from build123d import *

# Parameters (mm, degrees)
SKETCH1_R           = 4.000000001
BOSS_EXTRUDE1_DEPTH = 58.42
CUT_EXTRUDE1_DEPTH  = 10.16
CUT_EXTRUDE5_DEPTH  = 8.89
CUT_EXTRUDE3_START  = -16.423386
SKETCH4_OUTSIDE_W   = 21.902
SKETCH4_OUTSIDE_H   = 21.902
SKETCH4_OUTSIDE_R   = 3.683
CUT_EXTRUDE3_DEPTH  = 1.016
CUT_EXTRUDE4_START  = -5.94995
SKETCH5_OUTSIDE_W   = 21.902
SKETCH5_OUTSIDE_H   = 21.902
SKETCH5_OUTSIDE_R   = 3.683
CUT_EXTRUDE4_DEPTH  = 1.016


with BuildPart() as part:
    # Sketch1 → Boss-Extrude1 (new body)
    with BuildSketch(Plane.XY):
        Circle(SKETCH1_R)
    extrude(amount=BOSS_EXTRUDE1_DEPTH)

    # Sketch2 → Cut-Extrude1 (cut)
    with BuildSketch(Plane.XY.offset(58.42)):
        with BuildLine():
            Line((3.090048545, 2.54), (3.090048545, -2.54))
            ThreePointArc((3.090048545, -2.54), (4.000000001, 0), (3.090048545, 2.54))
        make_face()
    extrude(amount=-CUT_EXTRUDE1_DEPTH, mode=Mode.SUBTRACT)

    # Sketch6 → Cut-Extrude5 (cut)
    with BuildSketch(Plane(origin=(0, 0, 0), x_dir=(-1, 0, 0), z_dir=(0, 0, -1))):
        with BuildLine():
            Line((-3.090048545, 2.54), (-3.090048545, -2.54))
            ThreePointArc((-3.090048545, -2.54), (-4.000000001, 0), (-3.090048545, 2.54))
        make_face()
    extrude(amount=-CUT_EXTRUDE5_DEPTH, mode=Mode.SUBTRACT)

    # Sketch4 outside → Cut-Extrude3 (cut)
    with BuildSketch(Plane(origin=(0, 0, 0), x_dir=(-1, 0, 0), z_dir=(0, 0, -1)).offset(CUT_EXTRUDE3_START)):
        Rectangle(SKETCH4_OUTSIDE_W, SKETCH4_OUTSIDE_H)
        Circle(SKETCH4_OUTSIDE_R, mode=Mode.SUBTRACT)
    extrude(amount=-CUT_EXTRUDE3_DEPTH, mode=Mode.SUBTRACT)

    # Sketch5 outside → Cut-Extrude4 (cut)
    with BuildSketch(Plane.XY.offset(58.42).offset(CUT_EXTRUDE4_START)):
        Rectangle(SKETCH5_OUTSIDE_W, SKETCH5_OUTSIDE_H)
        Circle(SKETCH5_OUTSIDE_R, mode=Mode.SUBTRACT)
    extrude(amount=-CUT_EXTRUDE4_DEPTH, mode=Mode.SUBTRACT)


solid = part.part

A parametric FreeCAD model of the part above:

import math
import FreeCAD as App
import Part
import Sketcher
Q = App.Units.Quantity


def add_polygon(sketch, points):
    """Adds a closed chain of lines whose ends are joined by coincident constraints."""
    first, n = sketch.GeometryCount, len(points)
    for a, b in zip(points, points[1:] + points[:1]):
        sketch.addGeometry(Part.LineSegment(App.Vector(*a, 0), App.Vector(*b, 0)), False)
    for i in range(n):
        sketch.addConstraint(Sketcher.Constraint("Coincident", first + i, 2, first + (i + 1) % n, 1))

doc = App.newDocument("Part")
body = doc.addObject("PartDesign::Body", "Body")

sketch1 = doc.addObject("Sketcher::SketchObject", "Sketch")
body.addObject(sketch1)
sketch1.AttachmentSupport = (doc.XY_Plane, [""])
sketch1.MapMode = "FlatFace"
sketch1.addGeometry(Part.Circle(App.Vector(0, 0, 0), App.Vector(0, 0, 1), 4), False)
sketch1.addConstraint(Sketcher.Constraint("Coincident", 0, 3, -1, 1))
sketch1.addConstraint(Sketcher.Constraint("Diameter", 0, Q("8 mm")))
pad1 = doc.addObject("PartDesign::Pad", "Pad")
body.addObject(pad1)
pad1.Profile = sketch1
pad1.Length = Q("2.3 in")

sketch2 = doc.addObject("Sketcher::SketchObject", "Sketch001")
body.addObject(sketch2)
sketch2.AttachmentSupport = (doc.XY_Plane, [""])
sketch2.MapMode = "FlatFace"
sketch2.AttachmentOffset = App.Placement(App.Vector(0, 0, 2.3 * 25.4), App.Rotation())
sketch2.addGeometry(Part.LineSegment(App.Vector(3.1, 2.5, 0), App.Vector(3.1, -2.5, 0)), False)
sketch2.addGeometry(Part.ArcOfCircle(Part.Circle(App.Vector(0, 0, 0), App.Vector(0, 0, 1), 4), math.radians(-39), math.radians(39)), False)
sketch2.addConstraint(Sketcher.Constraint("Coincident", 0, 1, 1, 2))
sketch2.addConstraint(Sketcher.Constraint("Coincident", 1, 1, 0, 2))
sketch2.addConstraint(Sketcher.Constraint("Vertical", 0))
sketch2.addConstraint(Sketcher.Constraint("Coincident", 1, 3, -1, 1))
sketch2.addConstraint(Sketcher.Constraint("DistanceY", 0, 2, 0, 1, Q("0.2 in")))
sketch2.addConstraint(Sketcher.Constraint("Radius", 1, Q("4 mm")))
pocket1 = doc.addObject("PartDesign::Pocket", "Pocket")
body.addObject(pocket1)
pocket1.Profile = sketch2
pocket1.Length = Q("0.4 in")

sketch3 = doc.addObject("Sketcher::SketchObject", "Sketch002")
body.addObject(sketch3)
sketch3.AttachmentSupport = (doc.XY_Plane, [""])
sketch3.MapMode = "FlatFace"
sketch3.addGeometry(Part.LineSegment(App.Vector(3.1, -2.5, 0), App.Vector(3.1, 2.5, 0)), False)
sketch3.addGeometry(Part.ArcOfCircle(Part.Circle(App.Vector(0, 0, 0), App.Vector(0, 0, 1), 4), math.radians(-39), math.radians(39)), False)
sketch3.addConstraint(Sketcher.Constraint("Coincident", 0, 1, 1, 1))
sketch3.addConstraint(Sketcher.Constraint("Coincident", 1, 2, 0, 2))
sketch3.addConstraint(Sketcher.Constraint("Vertical", 0))
sketch3.addConstraint(Sketcher.Constraint("Coincident", 1, 3, -1, 1))
sketch3.addConstraint(Sketcher.Constraint("DistanceY", 0, 1, 0, 2, Q("0.2 in")))
sketch3.addConstraint(Sketcher.Constraint("Radius", 1, Q("4 mm")))
pocket2 = doc.addObject("PartDesign::Pocket", "Pocket001")
body.addObject(pocket2)
pocket2.Profile = sketch3
pocket2.Length = Q("0.35 in")
pocket2.Reversed = True

sketch4 = doc.addObject("Sketcher::SketchObject", "Sketch003")
body.addObject(sketch4)
sketch4.AttachmentSupport = (doc.XY_Plane, [""])
sketch4.MapMode = "FlatFace"
sketch4.AttachmentOffset = App.Placement(App.Vector(0, 0, 16.423386), App.Rotation())
add_polygon(sketch4, [(11, 11), (11, -11), (-11, -11), (-11, 11)])
sketch4.addGeometry(Part.Circle(App.Vector(0, 0, 0), App.Vector(0, 0, 1), 3.7), False)
sketch4.addConstraint(Sketcher.Constraint("Vertical", 0))
sketch4.addConstraint(Sketcher.Constraint("Horizontal", 1))
sketch4.addConstraint(Sketcher.Constraint("Vertical", 2))
sketch4.addConstraint(Sketcher.Constraint("Horizontal", 3))
sketch4.addConstraint(Sketcher.Constraint("Coincident", 4, 3, -1, 1))
sketch4.addConstraint(Sketcher.Constraint("Symmetric", 0, 2, 2, 2, -1, 1))
sketch4.addConstraint(Sketcher.Constraint("Equal", 3, 0))
sketch4.addConstraint(Sketcher.Constraint("Diameter", 4, Q("0.29 in")))
sketch4.addConstraint(Sketcher.Constraint("DistanceX", 1, 2, 1, 1, Q("21.902 mm")))
pocket3 = doc.addObject("PartDesign::Pocket", "Pocket002")
body.addObject(pocket3)
pocket3.Profile = sketch4
pocket3.Length = Q("0.04 in")
pocket3.Reversed = True

sketch5 = doc.addObject("Sketcher::SketchObject", "Sketch004")
body.addObject(sketch5)
sketch5.AttachmentSupport = (doc.XY_Plane, [""])
sketch5.MapMode = "FlatFace"
sketch5.AttachmentOffset = App.Placement(App.Vector(0, 0, 52.47005), App.Rotation())
add_polygon(sketch5, [(-11, 11), (-11, -11), (11, -11), (11, 11)])
sketch5.addGeometry(Part.Circle(App.Vector(0, 0, 0), App.Vector(0, 0, 1), 3.7), False)
sketch5.addConstraint(Sketcher.Constraint("Vertical", 0))
sketch5.addConstraint(Sketcher.Constraint("Horizontal", 1))
sketch5.addConstraint(Sketcher.Constraint("Vertical", 2))
sketch5.addConstraint(Sketcher.Constraint("Horizontal", 3))
sketch5.addConstraint(Sketcher.Constraint("Coincident", 4, 3, -1, 1))
sketch5.addConstraint(Sketcher.Constraint("Symmetric", 0, 2, 2, 2, -1, 1))
sketch5.addConstraint(Sketcher.Constraint("Equal", 3, 0))
sketch5.addConstraint(Sketcher.Constraint("Diameter", 4, Q("0.29 in")))
sketch5.addConstraint(Sketcher.Constraint("DistanceX", 1, 1, 1, 2, Q("21.902 mm")))
pocket4 = doc.addObject("PartDesign::Pocket", "Pocket003")
body.addObject(pocket4)
pocket4.Profile = sketch5
pocket4.Length = Q("0.04 in")

doc.recompute()
